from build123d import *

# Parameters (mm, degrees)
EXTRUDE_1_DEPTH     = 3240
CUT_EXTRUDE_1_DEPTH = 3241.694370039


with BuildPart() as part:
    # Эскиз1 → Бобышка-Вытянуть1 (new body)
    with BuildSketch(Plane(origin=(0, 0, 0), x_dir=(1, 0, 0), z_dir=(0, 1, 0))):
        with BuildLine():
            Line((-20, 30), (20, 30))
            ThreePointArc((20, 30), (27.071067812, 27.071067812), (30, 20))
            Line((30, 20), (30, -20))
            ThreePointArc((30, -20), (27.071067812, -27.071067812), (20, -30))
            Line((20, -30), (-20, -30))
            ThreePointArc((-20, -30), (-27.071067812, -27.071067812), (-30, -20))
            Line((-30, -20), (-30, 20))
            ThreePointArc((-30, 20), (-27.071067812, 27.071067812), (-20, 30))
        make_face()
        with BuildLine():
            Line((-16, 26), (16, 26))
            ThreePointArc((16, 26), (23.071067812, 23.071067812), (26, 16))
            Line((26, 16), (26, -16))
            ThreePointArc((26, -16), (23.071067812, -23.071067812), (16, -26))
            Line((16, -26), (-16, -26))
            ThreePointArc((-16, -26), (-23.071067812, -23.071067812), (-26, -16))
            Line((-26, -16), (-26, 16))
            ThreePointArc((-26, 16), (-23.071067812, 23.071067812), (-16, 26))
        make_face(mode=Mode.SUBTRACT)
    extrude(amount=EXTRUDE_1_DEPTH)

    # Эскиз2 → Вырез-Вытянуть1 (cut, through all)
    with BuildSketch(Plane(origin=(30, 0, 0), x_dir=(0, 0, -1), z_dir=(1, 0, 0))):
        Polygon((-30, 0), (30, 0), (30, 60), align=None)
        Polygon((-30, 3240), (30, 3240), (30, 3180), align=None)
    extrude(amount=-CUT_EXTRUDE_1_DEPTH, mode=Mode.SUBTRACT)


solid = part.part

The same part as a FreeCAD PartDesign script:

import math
import FreeCAD as App
import Part
import Sketcher

V = App.Vector


def add_polygon(sketch, points):
    """Adds a closed chain of lines whose ends are joined by coincident constraints."""
    first, n = sketch.GeometryCount, len(points)
    for a, b in zip(points, points[1:] + points[:1]):
        sketch.addGeometry(Part.LineSegment(App.Vector(*a, 0), App.Vector(*b, 0)), False)
    for i in range(n):
        sketch.addConstraint(Sketcher.Constraint("Coincident", first + i, 2, first + (i + 1) % n, 1))

doc = App.newDocument("Part")
body = doc.addObject("PartDesign::Body", "Body")

# Sketch on XZ plane
sketch1 = body.newObject("Sketcher::SketchObject", "Sketch")
sketch1.AttachmentSupport = (doc.getObject("XZ_Plane"), [""])
sketch1.MapMode = "FlatFace"
sketch1.addGeometry([
    Part.LineSegment(V(20, -30, 0), V(-20, -30, 0)),  # 0
    Part.ArcOfCircle(Part.Circle(V(-20, -20, 0), V(0, 0, 1), 10), math.radians(180), math.radians(270)),  # 1
    Part.LineSegment(V(-30, -20, 0), V(-30, 20, 0)),  # 2
    Part.ArcOfCircle(Part.Circle(V(-20, 20, 0), V(0, 0, 1), 10), math.radians(90), math.radians(180)),  # 3
    Part.LineSegment(V(-20, 30, 0), V(20, 30, 0)),  # 4
    Part.ArcOfCircle(Part.Circle(V(20, 20, 0), V(0, 0, 1), 10), math.radians(0), math.radians(90)),  # 5
    Part.LineSegment(V(30, 20, 0), V(30, -20, 0)),  # 6
    Part.ArcOfCircle(Part.Circle(V(20, -20, 0), V(0, 0, 1), 10), math.radians(-90), math.radians(0)),  # 7
    Part.LineSegment(V(-16, -26, 0), V(16, -26, 0)),  # 8
    Part.ArcOfCircle(Part.Circle(V(16, -16, 0), V(0, 0, 1), 10), math.radians(-90), math.radians(0)),  # 9
    Part.LineSegment(V(26, -16, 0), V(26, 16, 0)),  # 10
    Part.ArcOfCircle(Part.Circle(V(16, 16, 0), V(0, 0, 1), 10), math.radians(0), math.radians(90)),  # 11
    Part.LineSegment(V(16, 26, 0), V(-16, 26, 0)),  # 12
    Part.ArcOfCircle(Part.Circle(V(-16, 16, 0), V(0, 0, 1), 10), math.radians(90), math.radians(180)),  # 13
    Part.LineSegment(V(-26, 16, 0), V(-26, -16, 0)),  # 14
    Part.ArcOfCircle(Part.Circle(V(-16, -16, 0), V(0, 0, 1), 10), math.radians(180), math.radians(270)),  # 15
], False)
sketch1.addConstraint([
    Sketcher.Constraint("Tangent", 0, 2, 1, 2),
    Sketcher.Constraint("Tangent", 1, 1, 2, 1),
    Sketcher.Constraint("Tangent", 2, 2, 3, 2),
    Sketcher.Constraint("Tangent", 3, 1, 4, 1),
    Sketcher.Constraint("Tangent", 4, 2, 5, 2),
    Sketcher.Constraint("Tangent", 5, 1, 6, 1),
    Sketcher.Constraint("Tangent", 6, 2, 7, 2),
    Sketcher.Constraint("Tangent", 7, 1, 0, 1),
    Sketcher.Constraint("Tangent", 8, 2, 9, 1),
    Sketcher.Constraint("Tangent", 9, 2, 10, 1),
    Sketcher.Constraint("Tangent", 10, 2, 11, 1),
    Sketcher.Constraint("Tangent", 11, 2, 12, 1),
    Sketcher.Constraint("Tangent", 12, 2, 13, 1),
    Sketcher.Constraint("Tangent", 13, 2, 14, 1),
    Sketcher.Constraint("Tangent", 14, 2, 15, 1),
    Sketcher.Constraint("Tangent", 15, 2, 8, 1),
    Sketcher.Constraint("Horizontal", 0),
    Sketcher.Constraint("Vertical", 2),
    Sketcher.Constraint("Horizontal", 4),
    Sketcher.Constraint("Vertical", 6),
    Sketcher.Constraint("Horizontal", 8),
    Sketcher.Constraint("Vertical", 10),
    Sketcher.Constraint("Horizontal", 12),
    Sketcher.Constraint("Vertical", 14),
    Sketcher.Constraint("Equal", 1, 3),
    Sketcher.Constraint("Equal", 3, 5),
    Sketcher.Constraint("Equal", 5, 7),
    Sketcher.Constraint("Equal", 7, 9),
    Sketcher.Constraint("Equal", 9, 11),
    Sketcher.Constraint("Equal", 11, 13),
    Sketcher.Constraint("Equal", 13, 15),
    Sketcher.Constraint("Symmetric", 1, 3, 5, 3, -1, 1),
    Sketcher.Constraint("Symmetric", 9, 3, 13, 3, -1, 1),
    Sketcher.Constraint("Equal", 4, 2),
    Sketcher.Constraint("Equal", 12, 10),
    Sketcher.Constraint("Radius", 1, 10.0),
    Sketcher.Constraint("DistanceX", 0, 2, 0, 1, 40.0),
    Sketcher.Constraint("DistanceX", 8, 1, 8, 2, 32.0),
])
pad1 = body.newObject("PartDesign::Pad", "Pad")
pad1.Profile = sketch1
pad1.Length = 3240
pad1.Reversed = True

# Sketch on YZ plane
sketch2 = body.newObject("Sketcher::SketchObject", "Sketch001")
sketch2.AttachmentSupport = (doc.getObject("YZ_Plane"), [""])
sketch2.MapMode = "FlatFace"
sketch2.AttachmentOffset = App.Placement(V(0, 0, 30), App.Rotation())
add_polygon(sketch2, [(0, 30), (0, -30), (60, -30)])  # lines 0-2
add_polygon(sketch2, [(3240, -30), (3240, 30), (3180, -30)])  # lines 3-5
sketch2.addConstraint([
    Sketcher.Constraint("Vertical", 0),
    Sketcher.Constraint("Horizontal", 1),
    Sketcher.Constraint("Vertical", 3),
    Sketcher.Constraint("Horizontal", 5),
    Sketcher.Constraint("Symmetric", 0, 2, 2, 2, -1, 1),
    Sketcher.Constraint("Perpendicular", 2, 4),
    Sketcher.Constraint("Horizontal", 2, 2, 3, 2),
    Sketcher.Constraint("Horizontal", 1, 2, 4, 2),
    Sketcher.Constraint("Equal", 1, 5),
    Sketcher.Constraint("DistanceX", 1, 1, 1, 2, 60.0),
    Sketcher.Constraint("DistanceX", -1, 1, 3, 2, 3240.0),
])
pocket1 = body.newObject("PartDesign::Pocket", "Pocket")
pocket1.Profile = sketch2
pocket1.Type = "ThroughAll"

doc.recompute()
